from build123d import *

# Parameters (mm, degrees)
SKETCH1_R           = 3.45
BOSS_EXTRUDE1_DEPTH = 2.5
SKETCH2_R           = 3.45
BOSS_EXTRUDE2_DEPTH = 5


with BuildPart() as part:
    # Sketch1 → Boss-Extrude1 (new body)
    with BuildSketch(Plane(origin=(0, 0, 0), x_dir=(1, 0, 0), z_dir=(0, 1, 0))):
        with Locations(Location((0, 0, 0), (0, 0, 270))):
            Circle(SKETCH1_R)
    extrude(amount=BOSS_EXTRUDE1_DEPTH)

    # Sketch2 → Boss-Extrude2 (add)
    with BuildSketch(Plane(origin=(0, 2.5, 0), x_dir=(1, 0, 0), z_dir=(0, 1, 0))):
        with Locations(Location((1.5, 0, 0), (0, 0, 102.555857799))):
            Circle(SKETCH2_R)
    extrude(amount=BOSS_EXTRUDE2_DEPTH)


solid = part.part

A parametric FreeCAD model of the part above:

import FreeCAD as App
import Part
import Sketcher

V = App.Vector

doc = App.newDocument("Part")
body = doc.addObject("PartDesign::Body", "Body")

sketch1 = doc.addObject("Sketcher::SketchObject", "Sketch")
body.addObject(sketch1)
sketch1.AttachmentSupport = (doc.XZ_Plane, [""])
sketch1.MapMode = "FlatFace"
sketch1.addGeometry(Part.Circle(V(0, 0, 0), V(0, 0, 1), 3.5), False)
sketch1.addConstraint(Sketcher.Constraint("Coincident", 0, 3, -1, 1))
sketch1.addConstraint(Sketcher.Constraint("Diameter", 0, 6.9))
pad1 = doc.addObject("PartDesign::Pad", "Pad")
body.addObject(pad1)
pad1.Profile = sketch1
pad1.Length = 2.5
pad1.Reversed = True

sketch2 = doc.addObject("Sketcher::SketchObject", "Sketch001")
body.addObject(sketch2)
sketch2.AttachmentSupport = (doc.XZ_Plane, [""])
sketch2.MapMode = "FlatFace"
sketch2.AttachmentOffset = App.Placement(V(0, 0, -2.5), App.Rotation())
sketch2.addGeometry(Part.Circle(V(1.5, 0, 0), V(0, 0, 1), 3.5), False)
sketch2.addConstraint(Sketcher.Constraint("PointOnObject", 0, 3, -1))
sketch2.addConstraint(Sketcher.Constraint("Diameter", 0, 6.9))
sketch2.addConstraint(Sketcher.Constraint("DistanceX", -1, 1, 0, 3, 1.5))
pad2 = doc.addObject("PartDesign::Pad", "Pad001")
body.addObject(pad2)
pad2.Profile = sketch2
pad2.Length = 5
pad2.Reversed = True

doc.recompute()
